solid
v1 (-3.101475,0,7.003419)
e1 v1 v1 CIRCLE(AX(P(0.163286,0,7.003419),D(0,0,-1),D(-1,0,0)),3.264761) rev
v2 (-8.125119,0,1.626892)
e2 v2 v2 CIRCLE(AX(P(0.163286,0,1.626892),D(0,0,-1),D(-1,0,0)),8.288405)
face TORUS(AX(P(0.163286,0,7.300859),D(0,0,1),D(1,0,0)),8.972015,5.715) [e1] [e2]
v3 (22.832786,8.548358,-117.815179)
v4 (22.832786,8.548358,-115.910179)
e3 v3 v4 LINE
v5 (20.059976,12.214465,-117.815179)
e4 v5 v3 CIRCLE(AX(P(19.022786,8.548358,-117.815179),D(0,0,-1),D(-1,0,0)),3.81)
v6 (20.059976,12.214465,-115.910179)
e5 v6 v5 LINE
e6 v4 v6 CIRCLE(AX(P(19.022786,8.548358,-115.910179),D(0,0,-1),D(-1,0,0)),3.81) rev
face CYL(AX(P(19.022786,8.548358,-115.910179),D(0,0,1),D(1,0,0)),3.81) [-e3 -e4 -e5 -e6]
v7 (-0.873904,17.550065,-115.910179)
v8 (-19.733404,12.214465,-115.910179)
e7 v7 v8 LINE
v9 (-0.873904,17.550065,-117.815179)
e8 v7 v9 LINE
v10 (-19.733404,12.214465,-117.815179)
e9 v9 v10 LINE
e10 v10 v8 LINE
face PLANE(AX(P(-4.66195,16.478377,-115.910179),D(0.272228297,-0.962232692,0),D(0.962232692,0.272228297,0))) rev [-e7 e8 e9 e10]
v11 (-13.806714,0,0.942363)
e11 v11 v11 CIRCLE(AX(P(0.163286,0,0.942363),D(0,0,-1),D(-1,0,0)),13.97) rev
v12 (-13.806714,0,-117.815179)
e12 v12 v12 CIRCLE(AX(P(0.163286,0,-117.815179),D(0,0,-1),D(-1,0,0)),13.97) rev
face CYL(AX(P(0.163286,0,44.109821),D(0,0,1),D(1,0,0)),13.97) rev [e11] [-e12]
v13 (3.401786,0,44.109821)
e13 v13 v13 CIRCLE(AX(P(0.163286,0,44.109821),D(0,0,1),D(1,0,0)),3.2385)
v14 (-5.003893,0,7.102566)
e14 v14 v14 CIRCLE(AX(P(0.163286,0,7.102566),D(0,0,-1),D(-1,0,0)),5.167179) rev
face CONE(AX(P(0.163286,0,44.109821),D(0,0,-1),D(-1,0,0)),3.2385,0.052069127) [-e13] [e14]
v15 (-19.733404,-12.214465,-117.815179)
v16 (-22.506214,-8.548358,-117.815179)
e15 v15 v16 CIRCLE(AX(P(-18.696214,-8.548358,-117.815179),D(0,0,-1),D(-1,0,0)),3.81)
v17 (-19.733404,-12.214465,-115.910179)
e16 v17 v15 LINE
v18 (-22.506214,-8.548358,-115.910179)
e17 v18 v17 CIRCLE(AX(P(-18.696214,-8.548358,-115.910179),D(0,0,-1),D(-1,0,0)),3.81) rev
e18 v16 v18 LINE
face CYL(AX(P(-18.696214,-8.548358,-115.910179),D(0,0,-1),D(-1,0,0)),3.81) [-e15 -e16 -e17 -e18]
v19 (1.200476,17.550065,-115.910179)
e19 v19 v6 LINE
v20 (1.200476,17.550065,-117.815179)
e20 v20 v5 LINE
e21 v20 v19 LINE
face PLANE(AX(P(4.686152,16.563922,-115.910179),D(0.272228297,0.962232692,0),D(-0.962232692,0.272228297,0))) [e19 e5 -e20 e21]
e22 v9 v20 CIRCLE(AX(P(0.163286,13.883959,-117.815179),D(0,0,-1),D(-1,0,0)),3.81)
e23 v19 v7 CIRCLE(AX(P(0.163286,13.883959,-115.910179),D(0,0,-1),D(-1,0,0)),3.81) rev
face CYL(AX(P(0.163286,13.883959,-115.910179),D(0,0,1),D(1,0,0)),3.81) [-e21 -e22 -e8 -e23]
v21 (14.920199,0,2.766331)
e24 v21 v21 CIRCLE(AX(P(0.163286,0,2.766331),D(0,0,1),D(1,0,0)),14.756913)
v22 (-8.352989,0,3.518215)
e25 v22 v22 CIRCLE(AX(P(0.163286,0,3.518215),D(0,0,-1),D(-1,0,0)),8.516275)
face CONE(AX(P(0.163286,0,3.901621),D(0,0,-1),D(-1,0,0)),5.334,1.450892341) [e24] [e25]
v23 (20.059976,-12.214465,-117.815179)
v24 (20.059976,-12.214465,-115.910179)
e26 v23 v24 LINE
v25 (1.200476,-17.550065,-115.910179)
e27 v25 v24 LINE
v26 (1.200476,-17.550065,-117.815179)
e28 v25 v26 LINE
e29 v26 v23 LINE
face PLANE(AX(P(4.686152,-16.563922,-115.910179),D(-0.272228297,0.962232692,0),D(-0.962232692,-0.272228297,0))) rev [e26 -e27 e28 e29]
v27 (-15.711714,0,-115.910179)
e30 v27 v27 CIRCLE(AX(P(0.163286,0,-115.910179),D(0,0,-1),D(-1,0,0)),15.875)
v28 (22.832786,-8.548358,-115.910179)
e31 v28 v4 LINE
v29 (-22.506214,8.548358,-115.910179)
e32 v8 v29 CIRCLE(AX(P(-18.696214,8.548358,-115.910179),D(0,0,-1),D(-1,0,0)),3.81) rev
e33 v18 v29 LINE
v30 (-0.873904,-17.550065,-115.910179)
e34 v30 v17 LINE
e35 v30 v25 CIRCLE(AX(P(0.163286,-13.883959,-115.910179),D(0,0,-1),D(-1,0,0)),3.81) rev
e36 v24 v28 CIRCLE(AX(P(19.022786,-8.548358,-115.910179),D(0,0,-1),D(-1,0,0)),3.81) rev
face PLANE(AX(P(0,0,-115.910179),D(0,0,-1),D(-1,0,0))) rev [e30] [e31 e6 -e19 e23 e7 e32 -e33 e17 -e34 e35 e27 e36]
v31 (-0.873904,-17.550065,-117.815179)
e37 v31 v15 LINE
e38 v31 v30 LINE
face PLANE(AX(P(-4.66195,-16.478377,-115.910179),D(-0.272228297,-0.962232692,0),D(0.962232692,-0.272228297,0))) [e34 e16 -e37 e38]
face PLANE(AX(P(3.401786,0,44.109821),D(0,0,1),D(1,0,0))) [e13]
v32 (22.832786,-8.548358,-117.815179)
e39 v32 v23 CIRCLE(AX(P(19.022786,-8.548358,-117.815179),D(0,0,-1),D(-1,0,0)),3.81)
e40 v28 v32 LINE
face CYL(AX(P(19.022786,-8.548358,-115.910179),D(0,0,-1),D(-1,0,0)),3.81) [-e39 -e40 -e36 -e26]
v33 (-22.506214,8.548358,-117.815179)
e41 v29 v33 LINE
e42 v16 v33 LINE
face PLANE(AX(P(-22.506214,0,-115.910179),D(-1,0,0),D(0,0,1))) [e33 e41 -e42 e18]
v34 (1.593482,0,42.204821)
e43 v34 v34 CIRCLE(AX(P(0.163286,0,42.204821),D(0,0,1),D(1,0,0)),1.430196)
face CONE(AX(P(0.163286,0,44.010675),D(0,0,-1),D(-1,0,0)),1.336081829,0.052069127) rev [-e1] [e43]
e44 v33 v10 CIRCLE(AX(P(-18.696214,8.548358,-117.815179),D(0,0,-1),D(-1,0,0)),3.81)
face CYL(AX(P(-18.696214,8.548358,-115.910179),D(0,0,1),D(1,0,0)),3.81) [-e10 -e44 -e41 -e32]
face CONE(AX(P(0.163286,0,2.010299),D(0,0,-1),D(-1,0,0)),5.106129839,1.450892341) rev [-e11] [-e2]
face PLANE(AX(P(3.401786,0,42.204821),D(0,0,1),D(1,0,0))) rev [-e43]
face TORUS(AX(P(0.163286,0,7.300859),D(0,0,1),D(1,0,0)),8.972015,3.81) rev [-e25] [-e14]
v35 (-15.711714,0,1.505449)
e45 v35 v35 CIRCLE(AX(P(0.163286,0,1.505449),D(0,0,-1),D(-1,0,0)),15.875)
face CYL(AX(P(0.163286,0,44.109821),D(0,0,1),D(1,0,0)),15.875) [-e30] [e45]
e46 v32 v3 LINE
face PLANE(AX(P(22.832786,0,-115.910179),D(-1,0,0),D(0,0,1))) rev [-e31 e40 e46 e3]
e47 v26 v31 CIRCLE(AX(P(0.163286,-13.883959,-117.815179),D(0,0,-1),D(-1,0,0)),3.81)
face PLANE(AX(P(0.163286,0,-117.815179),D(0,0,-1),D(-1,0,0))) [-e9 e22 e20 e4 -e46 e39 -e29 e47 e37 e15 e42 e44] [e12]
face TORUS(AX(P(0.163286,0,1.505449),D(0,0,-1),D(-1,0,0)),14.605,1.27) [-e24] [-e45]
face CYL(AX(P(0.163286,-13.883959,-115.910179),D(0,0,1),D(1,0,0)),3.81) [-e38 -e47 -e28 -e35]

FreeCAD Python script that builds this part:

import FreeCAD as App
import Part
import Sketcher
Q = App.Units.Quantity


def edges_at(feature, points):
    """Names of the edges that pass closest to the given points."""
    edges = feature.Shape.Edges
    near = lambda p: min(range(len(edges)), key=lambda i: edges[i].distToShape(Part.Vertex(*p))[0])
    return sorted({f"Edge{near(p) + 1}" for p in points})


def faces_at(feature, points):
    """Names of the faces that lie closest to the given points."""
    faces = feature.Shape.Faces
    near = lambda p: min(range(len(faces)), key=lambda i: faces[i].distToShape(Part.Vertex(*p))[0])
    return sorted({f"Face{near(p) + 1}" for p in points})


def add_polygon(sketch, points):
    """Adds a closed chain of lines whose ends are joined by coincident constraints."""
    first, n = sketch.GeometryCount, len(points)
    for a, b in zip(points, points[1:] + points[:1]):
        sketch.addGeometry(Part.LineSegment(App.Vector(*a, 0), App.Vector(*b, 0)), False)
    for i in range(n):
        sketch.addConstraint(Sketcher.Constraint("Coincident", first + i, 2, first + (i + 1) % n, 1))

doc = App.newDocument("Part")
body = doc.addObject("PartDesign::Body", "Body")

# Sketch on XZ plane
sketch1 = body.newObject("Sketcher::SketchObject", "Sketch")
sketch1.AttachmentSupport = (doc.getObject("XZ_Plane"), [""])
sketch1.MapMode = "FlatFace"
add_polygon(sketch1, [(16, 2.6), (16, -117.8), (0.2, -117.8), (0.2, 44.1), (3.4, 44.1), (5.5, 3.9)])  # lines 0-5
sketch1.addGeometry(Part.LineSegment(App.Vector(0.2, 44.1, 0), App.Vector(0.2, -117.8, 0)), True)  # axis
sketch1.addConstraint([
    Sketcher.Constraint("Vertical", 0),
    Sketcher.Constraint("Horizontal", 1),
    Sketcher.Constraint("Vertical", 2),
    Sketcher.Constraint("Horizontal", 3),
    Sketcher.Constraint("Vertical", 6),
    Sketcher.Constraint("Coincident", 6, 1, 2, 2),
    Sketcher.Constraint("Horizontal", 0, 2, 6, 2),
    Sketcher.Constraint("DistanceX", 1, 2, 1, 1, Q("0.625 in")),
    Sketcher.Constraint("DistanceY", 0, 2, 0, 1, Q("4.742 in")),
    Sketcher.Constraint("DistanceY", 2, 1, 2, 2, Q("6.375 in")),
    Sketcher.Constraint("Angle", 5, Q("-6.869992 deg")),
    Sketcher.Constraint("DistanceX", 2, 2, 4, 2, Q("0.21 in")),
    Sketcher.Constraint("DistanceX", 3, 1, 3, 2, Q("0.1275 in")),
    Sketcher.Constraint("DistanceY", 0, 2, -1, 1, Q("117.815179 mm")),
    Sketcher.Constraint("DistanceX", -1, 1, 0, 2, Q("16.038286 mm")),
])
revolution = body.newObject("PartDesign::Revolution", "Revolution")
revolution.Profile = sketch1
revolution.ReferenceAxis = (sketch1, ["Axis0"])
revolution.Angle = 360
doc.recompute()

fillet = body.newObject("PartDesign::Fillet", "Fillet")
fillet.Base = (revolution, edges_at(revolution, [(-5.171, 0, 3.902)]))
fillet.Radius = Q("0.15 in")
doc.recompute()

thickness = body.newObject("PartDesign::Thickness", "Thickness")
thickness.Base = (fillet, faces_at(fillet, [(0.163, 0, -117.815)]))
thickness.Value = Q("0.075 in")
thickness.Reversed = True
thickness.Join = "Intersection"

# Sketch on XY plane
sketch2 = body.newObject("Sketcher::SketchObject", "Sketch001")
sketch2.AttachmentSupport = (doc.getObject("XY_Plane"), [""])
sketch2.MapMode = "FlatFace"
sketch2.AttachmentOffset = App.Placement(App.Vector(0, 0, -115.910179), App.Rotation())
add_polygon(sketch2, [(-23, 11), (0, 18), (23, 11), (23, -11), (0, -18), (-23, -11)])  # lines 0-5
sketch2.addGeometry(Part.Circle(App.Vector(0, 0, 0), App.Vector(0, 0, 1), 16), False)  # 6
sketch2.addConstraint([
    Sketcher.Constraint("Vertical", 2),
    Sketcher.Constraint("Vertical", 5),
    Sketcher.Constraint("Symmetric", 0, 2, 3, 2, -1),
    Sketcher.Constraint("PointOnObject", 6, 3, -1),
    Sketcher.Constraint("Parallel", 0, 3),
    Sketcher.Constraint("Parallel", 1, 4),
    Sketcher.Constraint("Horizontal", 2, 2, 4, 2),
    Sketcher.Constraint("Horizontal", 1, 2, 5, 2),
    Sketcher.Constraint("Vertical", 6, 3, 0, 2),
    Sketcher.Constraint("Diameter", 6, Q("1.25 in")),
    Sketcher.Constraint("DistanceY", 2, 2, 2, 1, Q("0.9 in")),
    Sketcher.Constraint("DistanceY", 3, 2, 0, 2, Q("1.405 in")),
    Sketcher.Constraint("DistanceX", 4, 2, 2, 2, Q("1.785 in")),
    Sketcher.Constraint("DistanceX", -1, 1, 6, 3, Q("0.163286 mm")),
])
pad1 = body.newObject("PartDesign::Pad", "Pad")
pad1.Profile = sketch2
pad1.Length = Q("0.075 in")
pad1.Reversed = True
doc.recompute()

fillet2 = body.newObject("PartDesign::Fillet", "Fillet001")
fillet2.Base = (pad1, edges_at(pad1, [
    (0.163, 17.843, -116.863),
    (-22.506, 11.43, -116.863),
    (-22.506, -11.43, -116.863),
    (0.163, -17.843, -116.863),
    (22.833, -11.43, -116.863),
    (22.833, 11.43, -116.863),
]))
fillet2.Radius = Q("0.15 in")
doc.recompute()

fillet3 = body.newObject("PartDesign::Fillet", "Fillet002")
fillet3.Base = (fillet2, edges_at(fillet2, [(-15.712, 0, 2.632)]))
fillet3.Radius = Q("0.05 in")

doc.recompute()
